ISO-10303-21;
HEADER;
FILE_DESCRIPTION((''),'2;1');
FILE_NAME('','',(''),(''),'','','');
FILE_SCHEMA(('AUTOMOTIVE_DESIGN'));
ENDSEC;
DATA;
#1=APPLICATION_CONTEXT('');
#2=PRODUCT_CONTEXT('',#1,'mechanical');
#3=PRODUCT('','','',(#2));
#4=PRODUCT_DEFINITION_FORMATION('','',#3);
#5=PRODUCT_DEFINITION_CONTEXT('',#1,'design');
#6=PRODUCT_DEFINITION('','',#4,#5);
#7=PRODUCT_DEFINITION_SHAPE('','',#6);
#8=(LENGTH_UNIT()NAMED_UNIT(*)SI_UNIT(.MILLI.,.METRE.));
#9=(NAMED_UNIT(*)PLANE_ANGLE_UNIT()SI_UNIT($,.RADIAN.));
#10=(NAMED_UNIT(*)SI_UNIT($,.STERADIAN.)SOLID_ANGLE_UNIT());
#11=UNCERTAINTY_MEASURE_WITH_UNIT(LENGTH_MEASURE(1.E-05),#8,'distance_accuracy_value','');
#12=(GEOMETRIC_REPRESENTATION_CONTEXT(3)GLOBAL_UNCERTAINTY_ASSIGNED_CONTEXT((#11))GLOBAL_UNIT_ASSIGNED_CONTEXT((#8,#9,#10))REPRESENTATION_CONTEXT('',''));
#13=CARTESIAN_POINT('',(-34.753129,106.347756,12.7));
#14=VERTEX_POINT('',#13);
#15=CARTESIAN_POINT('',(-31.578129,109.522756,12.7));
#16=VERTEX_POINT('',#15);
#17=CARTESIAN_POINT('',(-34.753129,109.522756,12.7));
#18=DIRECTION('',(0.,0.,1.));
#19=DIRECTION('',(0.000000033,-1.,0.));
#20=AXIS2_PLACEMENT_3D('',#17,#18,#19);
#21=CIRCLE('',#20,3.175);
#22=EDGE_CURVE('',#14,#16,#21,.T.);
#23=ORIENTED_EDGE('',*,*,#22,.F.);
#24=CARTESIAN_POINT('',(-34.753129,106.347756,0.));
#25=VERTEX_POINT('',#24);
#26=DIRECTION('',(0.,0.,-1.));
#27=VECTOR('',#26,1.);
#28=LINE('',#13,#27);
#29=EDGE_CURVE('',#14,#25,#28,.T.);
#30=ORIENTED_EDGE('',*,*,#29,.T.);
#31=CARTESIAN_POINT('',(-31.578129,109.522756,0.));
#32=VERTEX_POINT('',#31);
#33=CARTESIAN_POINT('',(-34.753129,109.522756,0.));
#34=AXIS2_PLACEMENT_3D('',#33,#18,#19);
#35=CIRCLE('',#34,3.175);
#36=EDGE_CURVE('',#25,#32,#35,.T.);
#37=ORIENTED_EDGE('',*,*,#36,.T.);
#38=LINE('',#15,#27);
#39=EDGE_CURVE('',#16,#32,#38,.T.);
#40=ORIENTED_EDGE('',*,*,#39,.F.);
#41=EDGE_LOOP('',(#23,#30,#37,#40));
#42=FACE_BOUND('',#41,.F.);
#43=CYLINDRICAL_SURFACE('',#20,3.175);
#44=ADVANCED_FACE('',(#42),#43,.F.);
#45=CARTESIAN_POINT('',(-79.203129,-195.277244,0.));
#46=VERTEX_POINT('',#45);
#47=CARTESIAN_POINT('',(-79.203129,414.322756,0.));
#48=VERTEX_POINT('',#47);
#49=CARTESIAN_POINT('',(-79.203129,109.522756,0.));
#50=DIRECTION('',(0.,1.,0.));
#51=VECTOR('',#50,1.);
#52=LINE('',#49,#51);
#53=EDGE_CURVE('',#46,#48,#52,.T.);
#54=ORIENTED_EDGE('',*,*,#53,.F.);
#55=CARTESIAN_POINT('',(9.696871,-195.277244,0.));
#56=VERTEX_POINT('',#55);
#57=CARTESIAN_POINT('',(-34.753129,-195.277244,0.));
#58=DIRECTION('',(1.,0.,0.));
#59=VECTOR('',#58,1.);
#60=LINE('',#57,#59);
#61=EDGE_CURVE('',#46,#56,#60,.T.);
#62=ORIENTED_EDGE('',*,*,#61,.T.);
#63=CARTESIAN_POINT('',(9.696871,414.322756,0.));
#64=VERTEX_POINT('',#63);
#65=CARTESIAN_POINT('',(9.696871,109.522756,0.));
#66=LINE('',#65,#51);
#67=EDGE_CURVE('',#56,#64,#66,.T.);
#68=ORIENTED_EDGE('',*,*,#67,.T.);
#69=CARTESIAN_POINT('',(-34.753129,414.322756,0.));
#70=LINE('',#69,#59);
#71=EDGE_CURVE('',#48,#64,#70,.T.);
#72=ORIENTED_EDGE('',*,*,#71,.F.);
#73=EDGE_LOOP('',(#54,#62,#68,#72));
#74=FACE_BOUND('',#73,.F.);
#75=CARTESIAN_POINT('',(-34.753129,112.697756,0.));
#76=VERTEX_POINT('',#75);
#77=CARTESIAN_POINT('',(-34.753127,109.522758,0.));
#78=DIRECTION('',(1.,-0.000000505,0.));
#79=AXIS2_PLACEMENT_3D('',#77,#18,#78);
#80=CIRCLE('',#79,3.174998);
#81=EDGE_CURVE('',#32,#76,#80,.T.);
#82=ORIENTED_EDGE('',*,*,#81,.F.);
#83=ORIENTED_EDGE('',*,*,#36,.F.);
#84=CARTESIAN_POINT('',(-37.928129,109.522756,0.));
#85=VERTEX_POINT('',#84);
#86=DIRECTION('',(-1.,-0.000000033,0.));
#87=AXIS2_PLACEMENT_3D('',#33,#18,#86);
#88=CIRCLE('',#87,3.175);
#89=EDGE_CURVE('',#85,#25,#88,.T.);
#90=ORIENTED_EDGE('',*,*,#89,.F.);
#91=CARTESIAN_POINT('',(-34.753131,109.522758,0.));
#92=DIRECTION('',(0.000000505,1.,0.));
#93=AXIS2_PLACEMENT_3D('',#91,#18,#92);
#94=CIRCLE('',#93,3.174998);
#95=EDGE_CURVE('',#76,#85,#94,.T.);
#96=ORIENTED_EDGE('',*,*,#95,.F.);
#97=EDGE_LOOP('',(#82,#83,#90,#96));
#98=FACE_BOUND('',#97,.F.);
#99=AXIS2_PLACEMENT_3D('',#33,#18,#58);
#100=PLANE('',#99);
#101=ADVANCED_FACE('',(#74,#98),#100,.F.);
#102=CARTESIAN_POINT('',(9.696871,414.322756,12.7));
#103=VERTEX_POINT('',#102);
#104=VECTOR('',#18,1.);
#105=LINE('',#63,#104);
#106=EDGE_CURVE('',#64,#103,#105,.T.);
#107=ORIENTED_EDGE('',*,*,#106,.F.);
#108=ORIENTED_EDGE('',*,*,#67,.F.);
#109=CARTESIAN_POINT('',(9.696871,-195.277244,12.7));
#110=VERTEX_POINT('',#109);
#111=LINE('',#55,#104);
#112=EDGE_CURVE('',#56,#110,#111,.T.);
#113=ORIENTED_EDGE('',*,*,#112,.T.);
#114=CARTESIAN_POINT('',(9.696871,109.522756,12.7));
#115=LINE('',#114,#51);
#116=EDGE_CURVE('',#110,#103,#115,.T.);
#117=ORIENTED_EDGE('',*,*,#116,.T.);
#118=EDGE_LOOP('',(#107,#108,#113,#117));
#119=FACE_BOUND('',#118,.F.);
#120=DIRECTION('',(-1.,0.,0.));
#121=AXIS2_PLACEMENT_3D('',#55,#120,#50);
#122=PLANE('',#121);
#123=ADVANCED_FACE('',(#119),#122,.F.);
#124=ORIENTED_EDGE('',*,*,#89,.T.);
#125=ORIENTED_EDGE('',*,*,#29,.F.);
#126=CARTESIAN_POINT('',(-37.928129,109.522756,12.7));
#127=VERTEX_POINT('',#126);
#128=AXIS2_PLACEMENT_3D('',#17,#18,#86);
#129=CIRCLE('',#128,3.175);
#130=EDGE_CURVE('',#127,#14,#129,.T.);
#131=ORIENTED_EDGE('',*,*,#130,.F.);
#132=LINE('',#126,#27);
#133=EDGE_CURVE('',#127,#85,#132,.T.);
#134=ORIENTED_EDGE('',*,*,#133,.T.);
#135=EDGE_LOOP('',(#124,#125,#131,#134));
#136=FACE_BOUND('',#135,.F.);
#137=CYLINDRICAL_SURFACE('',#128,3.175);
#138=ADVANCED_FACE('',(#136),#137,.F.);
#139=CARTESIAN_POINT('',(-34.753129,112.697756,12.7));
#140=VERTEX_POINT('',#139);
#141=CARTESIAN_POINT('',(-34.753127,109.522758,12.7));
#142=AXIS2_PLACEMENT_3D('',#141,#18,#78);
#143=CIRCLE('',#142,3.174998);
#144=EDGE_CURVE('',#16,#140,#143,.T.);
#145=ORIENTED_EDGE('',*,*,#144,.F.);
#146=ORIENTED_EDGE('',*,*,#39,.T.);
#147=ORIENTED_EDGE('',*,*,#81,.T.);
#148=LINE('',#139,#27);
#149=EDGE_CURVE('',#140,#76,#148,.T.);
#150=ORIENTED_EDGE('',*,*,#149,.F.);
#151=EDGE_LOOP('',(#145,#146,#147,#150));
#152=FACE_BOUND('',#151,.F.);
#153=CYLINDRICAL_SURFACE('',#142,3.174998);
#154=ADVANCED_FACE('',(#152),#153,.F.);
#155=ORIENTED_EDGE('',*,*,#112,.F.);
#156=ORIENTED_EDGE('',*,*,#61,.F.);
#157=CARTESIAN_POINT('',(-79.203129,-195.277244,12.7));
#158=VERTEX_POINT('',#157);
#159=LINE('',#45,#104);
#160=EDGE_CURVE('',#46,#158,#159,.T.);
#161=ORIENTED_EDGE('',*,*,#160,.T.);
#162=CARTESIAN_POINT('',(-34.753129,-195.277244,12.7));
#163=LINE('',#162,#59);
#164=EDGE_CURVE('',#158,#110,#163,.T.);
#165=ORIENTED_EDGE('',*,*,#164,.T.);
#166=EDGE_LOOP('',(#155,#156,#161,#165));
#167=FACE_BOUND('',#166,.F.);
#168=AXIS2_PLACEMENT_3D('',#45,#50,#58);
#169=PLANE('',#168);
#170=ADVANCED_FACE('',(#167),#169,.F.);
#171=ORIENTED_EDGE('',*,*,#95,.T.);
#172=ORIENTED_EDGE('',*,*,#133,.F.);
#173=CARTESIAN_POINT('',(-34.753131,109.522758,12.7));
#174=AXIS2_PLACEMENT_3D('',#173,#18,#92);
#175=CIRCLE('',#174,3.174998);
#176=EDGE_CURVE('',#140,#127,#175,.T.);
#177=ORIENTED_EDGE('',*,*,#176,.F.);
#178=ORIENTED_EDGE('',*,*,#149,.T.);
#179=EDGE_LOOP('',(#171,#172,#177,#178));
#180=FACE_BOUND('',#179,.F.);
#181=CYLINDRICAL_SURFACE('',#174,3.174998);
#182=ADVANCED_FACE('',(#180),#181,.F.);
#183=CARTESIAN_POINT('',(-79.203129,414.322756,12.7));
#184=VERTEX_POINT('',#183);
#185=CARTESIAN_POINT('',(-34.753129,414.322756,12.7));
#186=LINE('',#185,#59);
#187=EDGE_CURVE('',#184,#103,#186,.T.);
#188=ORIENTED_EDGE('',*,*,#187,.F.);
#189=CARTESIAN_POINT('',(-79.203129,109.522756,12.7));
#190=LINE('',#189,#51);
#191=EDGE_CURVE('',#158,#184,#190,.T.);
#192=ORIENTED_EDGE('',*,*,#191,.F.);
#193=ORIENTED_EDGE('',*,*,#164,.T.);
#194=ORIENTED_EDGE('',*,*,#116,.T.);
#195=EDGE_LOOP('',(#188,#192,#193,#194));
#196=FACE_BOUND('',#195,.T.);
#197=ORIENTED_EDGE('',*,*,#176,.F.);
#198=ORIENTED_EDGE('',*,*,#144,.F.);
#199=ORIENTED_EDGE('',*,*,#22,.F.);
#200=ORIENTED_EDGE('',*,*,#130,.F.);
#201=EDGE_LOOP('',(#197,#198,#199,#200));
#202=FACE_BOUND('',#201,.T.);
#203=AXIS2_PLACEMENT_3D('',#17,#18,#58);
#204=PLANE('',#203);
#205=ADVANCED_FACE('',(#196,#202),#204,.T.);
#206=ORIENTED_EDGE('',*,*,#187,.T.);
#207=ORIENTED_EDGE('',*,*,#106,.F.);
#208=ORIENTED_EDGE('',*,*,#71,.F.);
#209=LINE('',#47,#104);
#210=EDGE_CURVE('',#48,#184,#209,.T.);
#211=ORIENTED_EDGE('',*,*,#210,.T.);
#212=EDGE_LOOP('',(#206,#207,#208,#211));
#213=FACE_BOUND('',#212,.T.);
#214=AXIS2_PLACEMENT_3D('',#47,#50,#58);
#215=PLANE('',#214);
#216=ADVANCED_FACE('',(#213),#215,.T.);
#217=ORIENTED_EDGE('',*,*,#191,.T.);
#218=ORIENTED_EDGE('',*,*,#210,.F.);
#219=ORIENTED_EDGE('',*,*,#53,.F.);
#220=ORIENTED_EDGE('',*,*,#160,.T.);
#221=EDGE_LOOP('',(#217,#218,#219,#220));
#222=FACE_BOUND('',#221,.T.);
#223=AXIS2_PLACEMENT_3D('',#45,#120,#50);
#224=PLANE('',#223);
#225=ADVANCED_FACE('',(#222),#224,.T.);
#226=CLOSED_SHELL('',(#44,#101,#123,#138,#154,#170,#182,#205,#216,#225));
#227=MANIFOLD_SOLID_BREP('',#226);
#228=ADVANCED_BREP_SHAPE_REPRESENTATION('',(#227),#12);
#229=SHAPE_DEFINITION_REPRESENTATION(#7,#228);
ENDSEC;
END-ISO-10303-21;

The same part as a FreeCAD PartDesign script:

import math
import FreeCAD as App
import Part
import Sketcher

V = App.Vector
Q = App.Units.Quantity

doc = App.newDocument("Part")
body = doc.addObject("PartDesign::Body", "Body")

sketch1 = doc.addObject("Sketcher::SketchObject", "Sketch")
body.addObject(sketch1)
sketch1.AttachmentSupport = (doc.XY_Plane, [""])
sketch1.MapMode = "FlatFace"
sketch1.addGeometry(Part.LineSegment(V(-79, 414, 0), V(-79, -195, 0)), False)
sketch1.addGeometry(Part.LineSegment(V(-79, -195, 0), V(10, -195, 0)), False)
sketch1.addGeometry(Part.LineSegment(V(10, -195, 0), V(10, 414, 0)), False)
sketch1.addGeometry(Part.LineSegment(V(10, 414, 0), V(-79, 414, 0)), False)
sketch1.addConstraint(Sketcher.Constraint("Coincident", 0, 2, 1, 1))
sketch1.addConstraint(Sketcher.Constraint("Coincident", 1, 2, 2, 1))
sketch1.addConstraint(Sketcher.Constraint("Coincident", 2, 2, 3, 1))
sketch1.addConstraint(Sketcher.Constraint("Coincident", 3, 2, 0, 1))
sketch1.addConstraint(Sketcher.Constraint("Vertical", 0))
sketch1.addConstraint(Sketcher.Constraint("Horizontal", 1))
sketch1.addConstraint(Sketcher.Constraint("Vertical", 2))
sketch1.addConstraint(Sketcher.Constraint("Horizontal", 3))
sketch1.addConstraint(Sketcher.Constraint("DistanceY", 0, 2, 0, 1, Q("24 in")))
sketch1.addConstraint(Sketcher.Constraint("DistanceX", 1, 1, 1, 2, Q("3.5 in")))
sketch1.addConstraint(Sketcher.Constraint("DistanceX", 0, 2, -1, 1, 79.203129))
sketch1.addConstraint(Sketcher.Constraint("DistanceY", 0, 2, -1, 1, 195.277244))
pad1 = doc.addObject("PartDesign::Pad", "Pad")
body.addObject(pad1)
pad1.Profile = sketch1
pad1.Length = Q("0.5 in")

sketch2 = doc.addObject("Sketcher::SketchObject", "Sketch001")
body.addObject(sketch2)
sketch2.AttachmentSupport = (doc.XY_Plane, [""])
sketch2.MapMode = "FlatFace"
sketch2.AttachmentOffset = App.Placement(V(0, 0, 0.5 * 25.4), App.Rotation())
sketch2.addGeometry(Part.ArcOfCircle(Part.Circle(V(-34.8, 109.5, 0), V(0, 0, 1), 3.2), math.radians(-180), math.radians(-90)), False)
sketch2.addGeometry(Part.ArcOfCircle(Part.Circle(V(-34.8, 109.5, 0), V(0, 0, 1), 3.2), math.radians(-90), math.radians(0)), False)
sketch2.addGeometry(Part.ArcOfCircle(Part.Circle(V(-34.8, 109.5, 0), V(0, 0, 1), 3.2), math.radians(0), math.radians(90)), False)
sketch2.addGeometry(Part.ArcOfCircle(Part.Circle(V(-34.8, 109.5, 0), V(0, 0, 1), 3.2), math.radians(90), math.radians(180)), False)
sketch2.addConstraint(Sketcher.Constraint("Tangent", 0, 2, 1, 1))
sketch2.addConstraint(Sketcher.Constraint("Tangent", 1, 2, 2, 1))
sketch2.addConstraint(Sketcher.Constraint("Tangent", 2, 2, 3, 1))
sketch2.addConstraint(Sketcher.Constraint("Tangent", 3, 2, 0, 1))
sketch2.addConstraint(Sketcher.Constraint("Equal", 0, 1))
sketch2.addConstraint(Sketcher.Constraint("Horizontal", 3, 3, 1, 2))
sketch2.addConstraint(Sketcher.Constraint("Horizontal", 1, 2, 3, 2))
sketch2.addConstraint(Sketcher.Constraint("Vertical", 3, 3, 0, 2))
sketch2.addConstraint(Sketcher.Constraint("Vertical", 0, 2, 2, 2))
sketch2.addConstraint(Sketcher.Constraint("Radius", 0, Q("0.125 in")))
sketch2.addConstraint(Sketcher.Constraint("DistanceX", 0, 3, -1, 1, 34.753129))
sketch2.addConstraint(Sketcher.Constraint("DistanceY", -1, 1, 0, 3, 109.522756))
pocket1 = doc.addObject("PartDesign::Pocket", "Pocket")
body.addObject(pocket1)
pocket1.Profile = sketch2
pocket1.Length = Q("1 in")

doc.recompute()
